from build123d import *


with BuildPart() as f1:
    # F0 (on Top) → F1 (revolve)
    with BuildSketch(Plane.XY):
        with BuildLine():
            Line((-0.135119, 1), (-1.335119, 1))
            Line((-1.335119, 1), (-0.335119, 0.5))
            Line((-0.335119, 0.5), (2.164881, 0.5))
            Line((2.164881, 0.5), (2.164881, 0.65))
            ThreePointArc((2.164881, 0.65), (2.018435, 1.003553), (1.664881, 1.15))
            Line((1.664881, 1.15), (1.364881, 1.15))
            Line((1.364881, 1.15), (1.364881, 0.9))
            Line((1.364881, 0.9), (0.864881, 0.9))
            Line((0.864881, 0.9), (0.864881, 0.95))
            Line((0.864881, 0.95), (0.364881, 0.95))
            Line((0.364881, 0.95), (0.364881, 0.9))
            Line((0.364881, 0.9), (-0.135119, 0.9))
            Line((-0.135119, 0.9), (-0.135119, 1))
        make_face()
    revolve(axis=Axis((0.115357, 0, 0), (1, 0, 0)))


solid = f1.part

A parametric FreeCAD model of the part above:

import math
import FreeCAD as App
import Part
import Sketcher
from FreeCAD import Vector
Q = App.Units.Quantity

doc = App.newDocument("Part")
body = doc.addObject("PartDesign::Body", "Body")

# Sketch on XY plane
sketch1 = body.newObject("Sketcher::SketchObject", "Sketch")
sketch1.AttachmentSupport = (doc.getObject("XY_Plane"), [""])
sketch1.MapMode = "FlatFace"
sketch1.addGeometry(Part.LineSegment(Vector(-0.135, 1, 0), Vector(-1.335, 1, 0)), False)
sketch1.addGeometry(Part.LineSegment(Vector(-1.335, 1, 0), Vector(-0.335, 0.5, 0)), False)
sketch1.addGeometry(Part.LineSegment(Vector(-0.335, 0.5, 0), Vector(2.165, 0.5, 0)), False)
sketch1.addGeometry(Part.LineSegment(Vector(2.165, 0.5, 0), Vector(2.165, 0.65, 0)), False)
sketch1.addGeometry(Part.ArcOfCircle(Part.Circle(Vector(1.665, 0.65, 0), Vector(0, 0, 1), 0.5), math.radians(0), math.radians(90)), False)
sketch1.addGeometry(Part.LineSegment(Vector(1.665, 1.15, 0), Vector(1.365, 1.15, 0)), False)
sketch1.addGeometry(Part.LineSegment(Vector(1.365, 1.15, 0), Vector(1.365, 0.9, 0)), False)
sketch1.addGeometry(Part.LineSegment(Vector(1.365, 0.9, 0), Vector(0.865, 0.9, 0)), False)
sketch1.addGeometry(Part.LineSegment(Vector(0.865, 0.9, 0), Vector(0.865, 0.95, 0)), False)
sketch1.addGeometry(Part.LineSegment(Vector(0.865, 0.95, 0), Vector(0.365, 0.95, 0)), False)
sketch1.addGeometry(Part.LineSegment(Vector(0.365, 0.95, 0), Vector(0.365, 0.9, 0)), False)
sketch1.addGeometry(Part.LineSegment(Vector(0.365, 0.9, 0), Vector(-0.135, 0.9, 0)), False)
sketch1.addGeometry(Part.LineSegment(Vector(-0.135, 0.9, 0), Vector(-0.135, 1, 0)), False)
sketch1.addConstraint(Sketcher.Constraint("Coincident", 0, 2, 1, 1))
sketch1.addConstraint(Sketcher.Constraint("Coincident", 1, 2, 2, 1))
sketch1.addConstraint(Sketcher.Constraint("Coincident", 2, 2, 3, 1))
sketch1.addConstraint(Sketcher.Constraint("Tangent", 3, 2, 4, 1))
sketch1.addConstraint(Sketcher.Constraint("Tangent", 4, 2, 5, 1))
sketch1.addConstraint(Sketcher.Constraint("Coincident", 5, 2, 6, 1))
sketch1.addConstraint(Sketcher.Constraint("Coincident", 6, 2, 7, 1))
sketch1.addConstraint(Sketcher.Constraint("Coincident", 7, 2, 8, 1))
sketch1.addConstraint(Sketcher.Constraint("Coincident", 8, 2, 9, 1))
sketch1.addConstraint(Sketcher.Constraint("Coincident", 9, 2, 10, 1))
sketch1.addConstraint(Sketcher.Constraint("Coincident", 10, 2, 11, 1))
sketch1.addConstraint(Sketcher.Constraint("Coincident", 11, 2, 12, 1))
sketch1.addConstraint(Sketcher.Constraint("Coincident", 12, 2, 0, 1))
sketch1.addConstraint(Sketcher.Constraint("Horizontal", 0))
sketch1.addConstraint(Sketcher.Constraint("Horizontal", 2))
sketch1.addConstraint(Sketcher.Constraint("Vertical", 3))
sketch1.addConstraint(Sketcher.Constraint("Horizontal", 5))
sketch1.addConstraint(Sketcher.Constraint("Vertical", 6))
sketch1.addConstraint(Sketcher.Constraint("Horizontal", 7))
sketch1.addConstraint(Sketcher.Constraint("Vertical", 8))
sketch1.addConstraint(Sketcher.Constraint("Horizontal", 9))
sketch1.addConstraint(Sketcher.Constraint("Vertical", 10))
sketch1.addConstraint(Sketcher.Constraint("Horizontal", 11))
sketch1.addConstraint(Sketcher.Constraint("Vertical", 12))
sketch1.addConstraint(Sketcher.Constraint("Horizontal", 7, 2, 10, 2))
sketch1.addConstraint(Sketcher.Constraint("Equal", 7, 9))
sketch1.addConstraint(Sketcher.Constraint("Equal", 9, 11))
sketch1.addConstraint(Sketcher.Constraint("Radius", 4, Q("0.5 mm")))
sketch1.addConstraint(Sketcher.Constraint("DistanceX", 0, 2, 0, 1, Q("1.2 mm")))
sketch1.addConstraint(Sketcher.Constraint("DistanceX", 2, 1, 2, 2, Q("2.5 mm")))
sketch1.addConstraint(Sketcher.Constraint("DistanceX", 5, 2, 5, 1, Q("0.3 mm")))
sketch1.addConstraint(Sketcher.Constraint("DistanceX", 7, 2, 7, 1, Q("0.5 mm")))
sketch1.addConstraint(Sketcher.Constraint("DistanceY", 12, 1, 12, 2, Q("0.1 mm")))
sketch1.addConstraint(Sketcher.Constraint("DistanceY", -1, 1, 0, 2, Q("1 mm")))
sketch1.addConstraint(Sketcher.Constraint("DistanceY", 3, 1, 3, 2, Q("0.15 mm")))
sketch1.addConstraint(Sketcher.Constraint("DistanceY", 6, 2, 6, 1, Q("0.25 mm")))
sketch1.addConstraint(Sketcher.Constraint("DistanceY", 8, 1, 8, 2, Q("0.05 mm")))
sketch1.addConstraint(Sketcher.Constraint("DistanceX", -1, 1, 4, 3, Q("1.664881 mm")))
revolution = body.newObject("PartDesign::Revolution", "Revolution")
revolution.Profile = sketch1
revolution.ReferenceAxis = (sketch1, ["H_Axis"])
revolution.Angle = 360

doc.recompute()
